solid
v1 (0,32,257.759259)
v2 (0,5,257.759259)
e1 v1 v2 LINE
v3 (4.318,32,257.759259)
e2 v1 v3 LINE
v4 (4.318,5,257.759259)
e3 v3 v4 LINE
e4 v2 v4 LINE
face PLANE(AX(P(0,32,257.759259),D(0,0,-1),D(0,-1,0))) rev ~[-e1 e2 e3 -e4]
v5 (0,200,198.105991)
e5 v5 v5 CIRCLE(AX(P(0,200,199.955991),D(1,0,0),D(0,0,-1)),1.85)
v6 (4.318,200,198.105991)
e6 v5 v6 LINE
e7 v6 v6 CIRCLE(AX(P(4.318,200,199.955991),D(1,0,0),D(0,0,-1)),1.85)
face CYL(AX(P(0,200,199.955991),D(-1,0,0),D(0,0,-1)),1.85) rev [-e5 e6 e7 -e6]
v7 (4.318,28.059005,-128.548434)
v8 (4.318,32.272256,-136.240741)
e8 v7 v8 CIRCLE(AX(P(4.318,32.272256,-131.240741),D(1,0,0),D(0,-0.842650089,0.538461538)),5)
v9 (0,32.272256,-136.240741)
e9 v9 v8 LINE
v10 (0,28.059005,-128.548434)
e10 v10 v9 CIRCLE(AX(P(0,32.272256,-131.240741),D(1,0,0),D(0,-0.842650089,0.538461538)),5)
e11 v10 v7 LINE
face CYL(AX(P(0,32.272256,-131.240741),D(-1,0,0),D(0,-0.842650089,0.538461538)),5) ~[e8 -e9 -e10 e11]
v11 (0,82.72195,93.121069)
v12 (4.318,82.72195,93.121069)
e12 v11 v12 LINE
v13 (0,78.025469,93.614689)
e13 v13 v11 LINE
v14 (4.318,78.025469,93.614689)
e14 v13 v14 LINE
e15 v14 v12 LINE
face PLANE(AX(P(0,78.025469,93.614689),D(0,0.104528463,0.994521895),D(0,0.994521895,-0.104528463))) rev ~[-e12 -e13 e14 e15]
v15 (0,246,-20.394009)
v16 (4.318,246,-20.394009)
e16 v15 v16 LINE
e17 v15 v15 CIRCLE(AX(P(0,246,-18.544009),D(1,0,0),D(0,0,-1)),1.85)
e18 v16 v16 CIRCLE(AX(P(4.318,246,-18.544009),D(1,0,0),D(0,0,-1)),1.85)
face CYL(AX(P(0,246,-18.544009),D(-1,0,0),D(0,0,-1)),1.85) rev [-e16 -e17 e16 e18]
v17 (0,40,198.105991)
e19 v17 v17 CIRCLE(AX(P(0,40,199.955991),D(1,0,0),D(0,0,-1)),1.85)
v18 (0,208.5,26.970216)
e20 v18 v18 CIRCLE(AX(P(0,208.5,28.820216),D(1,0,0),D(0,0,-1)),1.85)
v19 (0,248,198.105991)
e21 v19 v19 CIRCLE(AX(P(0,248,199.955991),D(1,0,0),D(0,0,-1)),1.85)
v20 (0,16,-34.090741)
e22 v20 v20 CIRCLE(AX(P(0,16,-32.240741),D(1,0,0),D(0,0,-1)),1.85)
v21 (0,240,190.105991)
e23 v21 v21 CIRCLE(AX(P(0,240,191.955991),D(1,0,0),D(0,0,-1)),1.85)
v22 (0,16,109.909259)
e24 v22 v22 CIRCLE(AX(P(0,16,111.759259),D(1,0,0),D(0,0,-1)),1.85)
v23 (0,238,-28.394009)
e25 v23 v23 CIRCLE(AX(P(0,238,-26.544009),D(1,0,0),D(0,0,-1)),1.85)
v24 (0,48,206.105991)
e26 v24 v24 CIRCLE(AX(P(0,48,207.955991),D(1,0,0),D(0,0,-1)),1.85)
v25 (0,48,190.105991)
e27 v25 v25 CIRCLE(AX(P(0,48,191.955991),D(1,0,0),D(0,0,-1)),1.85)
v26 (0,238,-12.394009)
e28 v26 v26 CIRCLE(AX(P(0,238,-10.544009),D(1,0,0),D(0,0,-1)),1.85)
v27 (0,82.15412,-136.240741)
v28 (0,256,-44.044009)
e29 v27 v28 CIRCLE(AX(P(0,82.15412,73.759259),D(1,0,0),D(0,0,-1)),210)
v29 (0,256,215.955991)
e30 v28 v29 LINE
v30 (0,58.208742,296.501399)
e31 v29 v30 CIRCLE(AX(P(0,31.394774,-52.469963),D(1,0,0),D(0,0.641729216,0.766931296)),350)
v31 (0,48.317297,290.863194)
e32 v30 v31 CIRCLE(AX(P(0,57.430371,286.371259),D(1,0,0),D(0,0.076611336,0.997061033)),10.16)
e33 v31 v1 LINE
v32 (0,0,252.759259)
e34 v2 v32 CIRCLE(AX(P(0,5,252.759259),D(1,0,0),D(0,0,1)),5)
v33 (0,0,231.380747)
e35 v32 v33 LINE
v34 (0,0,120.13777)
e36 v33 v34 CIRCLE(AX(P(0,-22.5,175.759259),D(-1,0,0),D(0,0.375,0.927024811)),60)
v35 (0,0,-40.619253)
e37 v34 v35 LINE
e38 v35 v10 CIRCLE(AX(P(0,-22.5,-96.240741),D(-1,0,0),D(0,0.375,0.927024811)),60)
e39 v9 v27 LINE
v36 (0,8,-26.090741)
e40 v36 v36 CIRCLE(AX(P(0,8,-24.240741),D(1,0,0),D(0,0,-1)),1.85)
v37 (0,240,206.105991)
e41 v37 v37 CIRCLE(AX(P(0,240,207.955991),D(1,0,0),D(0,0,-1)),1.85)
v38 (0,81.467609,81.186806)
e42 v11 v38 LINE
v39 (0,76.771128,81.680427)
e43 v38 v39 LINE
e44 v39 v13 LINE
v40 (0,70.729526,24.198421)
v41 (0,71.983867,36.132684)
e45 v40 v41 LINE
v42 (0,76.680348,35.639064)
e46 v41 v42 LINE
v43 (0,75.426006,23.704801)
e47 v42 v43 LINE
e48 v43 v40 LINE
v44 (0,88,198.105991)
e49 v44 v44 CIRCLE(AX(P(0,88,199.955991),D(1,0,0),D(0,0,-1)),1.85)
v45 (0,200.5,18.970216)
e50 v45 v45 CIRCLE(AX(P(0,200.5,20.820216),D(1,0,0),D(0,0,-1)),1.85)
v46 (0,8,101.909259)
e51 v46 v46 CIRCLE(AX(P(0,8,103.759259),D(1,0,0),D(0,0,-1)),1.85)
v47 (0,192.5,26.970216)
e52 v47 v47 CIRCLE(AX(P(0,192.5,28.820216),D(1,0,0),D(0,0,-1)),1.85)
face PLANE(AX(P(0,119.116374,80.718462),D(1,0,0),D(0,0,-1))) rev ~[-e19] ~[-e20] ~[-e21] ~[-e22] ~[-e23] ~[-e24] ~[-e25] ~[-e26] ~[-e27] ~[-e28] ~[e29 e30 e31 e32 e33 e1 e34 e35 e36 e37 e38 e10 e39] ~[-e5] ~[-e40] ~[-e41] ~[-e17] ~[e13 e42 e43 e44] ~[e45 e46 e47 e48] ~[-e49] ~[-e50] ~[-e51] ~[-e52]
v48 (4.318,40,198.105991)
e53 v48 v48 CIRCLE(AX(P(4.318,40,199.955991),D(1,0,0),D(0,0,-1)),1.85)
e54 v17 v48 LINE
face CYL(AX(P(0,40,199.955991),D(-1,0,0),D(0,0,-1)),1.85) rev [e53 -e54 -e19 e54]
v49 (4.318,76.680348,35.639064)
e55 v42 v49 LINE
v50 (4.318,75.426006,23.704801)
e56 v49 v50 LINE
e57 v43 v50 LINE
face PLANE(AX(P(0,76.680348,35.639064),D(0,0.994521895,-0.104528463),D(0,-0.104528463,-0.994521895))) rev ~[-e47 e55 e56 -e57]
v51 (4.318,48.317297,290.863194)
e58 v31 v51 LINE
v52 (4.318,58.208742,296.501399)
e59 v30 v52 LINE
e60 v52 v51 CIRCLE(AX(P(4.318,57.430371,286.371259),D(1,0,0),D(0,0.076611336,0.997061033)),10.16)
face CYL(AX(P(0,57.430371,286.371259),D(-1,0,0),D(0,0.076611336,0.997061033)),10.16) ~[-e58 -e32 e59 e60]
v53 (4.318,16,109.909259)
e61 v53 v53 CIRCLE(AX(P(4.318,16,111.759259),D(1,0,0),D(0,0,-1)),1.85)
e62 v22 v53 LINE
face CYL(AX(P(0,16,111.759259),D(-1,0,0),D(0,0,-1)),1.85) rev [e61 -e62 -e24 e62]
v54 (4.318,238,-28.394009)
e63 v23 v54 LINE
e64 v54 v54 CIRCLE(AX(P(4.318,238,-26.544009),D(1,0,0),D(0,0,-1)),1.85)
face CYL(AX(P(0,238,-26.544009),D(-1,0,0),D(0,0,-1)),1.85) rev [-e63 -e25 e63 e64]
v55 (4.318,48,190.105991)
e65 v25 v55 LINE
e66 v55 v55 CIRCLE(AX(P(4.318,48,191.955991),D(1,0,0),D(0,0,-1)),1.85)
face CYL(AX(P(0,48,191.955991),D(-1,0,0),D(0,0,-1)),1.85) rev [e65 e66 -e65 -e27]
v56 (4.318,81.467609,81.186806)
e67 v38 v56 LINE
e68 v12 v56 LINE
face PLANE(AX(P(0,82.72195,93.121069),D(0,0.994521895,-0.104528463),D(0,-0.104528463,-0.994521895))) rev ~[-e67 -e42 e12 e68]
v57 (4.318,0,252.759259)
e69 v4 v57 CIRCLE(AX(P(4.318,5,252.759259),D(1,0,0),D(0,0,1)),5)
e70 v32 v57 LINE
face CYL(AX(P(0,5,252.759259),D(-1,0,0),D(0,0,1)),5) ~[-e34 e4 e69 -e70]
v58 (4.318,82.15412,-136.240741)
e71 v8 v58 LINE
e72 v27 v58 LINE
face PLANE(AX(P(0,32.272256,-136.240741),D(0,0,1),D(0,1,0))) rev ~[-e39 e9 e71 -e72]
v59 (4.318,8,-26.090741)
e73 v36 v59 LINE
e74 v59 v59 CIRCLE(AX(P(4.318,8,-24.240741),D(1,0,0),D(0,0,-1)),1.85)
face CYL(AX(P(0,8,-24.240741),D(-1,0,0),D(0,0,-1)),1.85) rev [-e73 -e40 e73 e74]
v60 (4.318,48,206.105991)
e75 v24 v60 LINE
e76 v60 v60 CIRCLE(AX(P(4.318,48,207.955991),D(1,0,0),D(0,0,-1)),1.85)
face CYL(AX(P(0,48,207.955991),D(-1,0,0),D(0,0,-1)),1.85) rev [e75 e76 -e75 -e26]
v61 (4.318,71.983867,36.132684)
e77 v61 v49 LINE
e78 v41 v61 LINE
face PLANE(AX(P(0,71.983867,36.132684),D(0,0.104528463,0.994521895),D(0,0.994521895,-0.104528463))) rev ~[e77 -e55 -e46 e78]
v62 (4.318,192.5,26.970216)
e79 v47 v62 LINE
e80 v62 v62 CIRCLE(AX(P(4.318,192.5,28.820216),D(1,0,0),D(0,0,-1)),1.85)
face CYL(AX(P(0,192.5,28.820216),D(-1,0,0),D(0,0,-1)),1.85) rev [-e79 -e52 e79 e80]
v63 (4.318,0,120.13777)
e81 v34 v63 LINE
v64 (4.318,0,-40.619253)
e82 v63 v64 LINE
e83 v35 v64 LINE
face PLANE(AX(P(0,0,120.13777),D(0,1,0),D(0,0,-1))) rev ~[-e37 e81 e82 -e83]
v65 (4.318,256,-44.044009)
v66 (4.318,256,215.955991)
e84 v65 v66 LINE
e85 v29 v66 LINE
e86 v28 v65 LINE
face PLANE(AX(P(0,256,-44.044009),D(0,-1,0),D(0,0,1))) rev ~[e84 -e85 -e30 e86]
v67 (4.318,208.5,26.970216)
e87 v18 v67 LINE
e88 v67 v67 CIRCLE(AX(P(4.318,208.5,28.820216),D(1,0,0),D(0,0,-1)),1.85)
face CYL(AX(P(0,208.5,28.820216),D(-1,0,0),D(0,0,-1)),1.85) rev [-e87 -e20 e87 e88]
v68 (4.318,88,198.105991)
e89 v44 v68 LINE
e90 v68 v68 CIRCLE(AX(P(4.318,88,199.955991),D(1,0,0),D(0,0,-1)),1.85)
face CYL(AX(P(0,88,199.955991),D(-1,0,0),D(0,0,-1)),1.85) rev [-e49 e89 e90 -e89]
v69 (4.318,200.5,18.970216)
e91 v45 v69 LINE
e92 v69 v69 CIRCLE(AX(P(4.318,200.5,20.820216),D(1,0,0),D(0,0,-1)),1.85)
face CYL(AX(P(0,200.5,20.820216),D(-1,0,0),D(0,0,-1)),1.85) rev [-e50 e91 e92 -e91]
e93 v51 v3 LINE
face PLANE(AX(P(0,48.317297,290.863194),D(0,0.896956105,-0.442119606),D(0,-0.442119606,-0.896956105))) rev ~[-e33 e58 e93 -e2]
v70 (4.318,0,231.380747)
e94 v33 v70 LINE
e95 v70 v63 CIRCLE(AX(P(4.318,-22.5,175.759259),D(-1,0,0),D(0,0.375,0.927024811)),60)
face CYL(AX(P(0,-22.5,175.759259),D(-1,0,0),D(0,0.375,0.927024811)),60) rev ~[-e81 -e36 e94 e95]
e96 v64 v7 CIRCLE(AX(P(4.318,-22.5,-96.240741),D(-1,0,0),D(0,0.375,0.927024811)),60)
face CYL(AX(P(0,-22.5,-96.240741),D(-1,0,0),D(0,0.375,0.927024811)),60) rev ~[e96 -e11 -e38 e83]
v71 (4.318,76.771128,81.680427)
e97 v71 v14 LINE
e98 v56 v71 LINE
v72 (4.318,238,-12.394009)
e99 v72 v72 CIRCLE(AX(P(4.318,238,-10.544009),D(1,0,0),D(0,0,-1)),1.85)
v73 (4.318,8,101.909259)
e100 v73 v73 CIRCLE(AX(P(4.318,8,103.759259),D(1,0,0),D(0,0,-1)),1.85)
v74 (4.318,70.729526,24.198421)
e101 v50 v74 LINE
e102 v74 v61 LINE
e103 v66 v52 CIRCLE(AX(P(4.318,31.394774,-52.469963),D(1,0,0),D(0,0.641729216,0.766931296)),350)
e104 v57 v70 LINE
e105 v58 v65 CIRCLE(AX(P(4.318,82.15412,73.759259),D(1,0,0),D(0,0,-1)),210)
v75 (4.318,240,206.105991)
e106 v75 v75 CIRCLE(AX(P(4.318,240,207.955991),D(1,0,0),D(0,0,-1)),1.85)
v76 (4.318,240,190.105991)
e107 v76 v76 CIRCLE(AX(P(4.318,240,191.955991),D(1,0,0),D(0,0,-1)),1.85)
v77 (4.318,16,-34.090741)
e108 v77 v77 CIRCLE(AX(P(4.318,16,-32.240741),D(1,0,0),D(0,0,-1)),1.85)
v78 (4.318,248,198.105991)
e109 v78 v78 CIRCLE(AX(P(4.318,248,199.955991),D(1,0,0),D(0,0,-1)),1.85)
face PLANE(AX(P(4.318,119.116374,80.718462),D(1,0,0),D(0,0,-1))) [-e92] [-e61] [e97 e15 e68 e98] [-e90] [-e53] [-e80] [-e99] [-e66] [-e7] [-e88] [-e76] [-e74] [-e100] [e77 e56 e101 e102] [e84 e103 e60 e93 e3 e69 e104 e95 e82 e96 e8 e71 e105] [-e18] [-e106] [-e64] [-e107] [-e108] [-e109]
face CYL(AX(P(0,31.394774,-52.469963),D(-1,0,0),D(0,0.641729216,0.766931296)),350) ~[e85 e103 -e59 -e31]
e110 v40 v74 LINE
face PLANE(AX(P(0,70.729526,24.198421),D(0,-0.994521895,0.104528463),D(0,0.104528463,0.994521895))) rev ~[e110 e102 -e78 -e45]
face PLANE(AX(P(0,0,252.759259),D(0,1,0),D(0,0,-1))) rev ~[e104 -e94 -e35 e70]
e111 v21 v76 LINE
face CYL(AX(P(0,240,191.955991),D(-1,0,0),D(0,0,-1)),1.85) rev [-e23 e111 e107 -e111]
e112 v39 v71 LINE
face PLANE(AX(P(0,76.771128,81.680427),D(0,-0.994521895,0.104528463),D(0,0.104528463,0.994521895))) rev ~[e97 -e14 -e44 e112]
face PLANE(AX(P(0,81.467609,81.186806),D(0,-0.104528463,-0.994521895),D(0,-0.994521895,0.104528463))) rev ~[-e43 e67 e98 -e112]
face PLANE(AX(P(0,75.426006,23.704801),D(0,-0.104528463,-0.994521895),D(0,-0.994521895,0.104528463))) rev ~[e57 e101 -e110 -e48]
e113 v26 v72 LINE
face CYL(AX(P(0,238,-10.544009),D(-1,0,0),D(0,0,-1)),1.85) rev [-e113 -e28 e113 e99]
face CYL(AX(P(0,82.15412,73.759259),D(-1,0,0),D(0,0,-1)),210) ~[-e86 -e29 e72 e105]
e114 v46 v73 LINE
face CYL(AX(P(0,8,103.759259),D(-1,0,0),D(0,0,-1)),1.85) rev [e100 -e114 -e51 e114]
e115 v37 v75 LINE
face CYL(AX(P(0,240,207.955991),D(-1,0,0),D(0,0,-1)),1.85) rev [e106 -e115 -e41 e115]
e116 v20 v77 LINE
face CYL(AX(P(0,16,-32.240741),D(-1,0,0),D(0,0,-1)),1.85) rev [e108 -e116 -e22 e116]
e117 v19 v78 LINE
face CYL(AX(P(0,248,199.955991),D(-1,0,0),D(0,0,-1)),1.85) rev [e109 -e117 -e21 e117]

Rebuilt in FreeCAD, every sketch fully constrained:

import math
import FreeCAD as App
import Part
import Sketcher
Q = App.Units.Quantity

doc = App.newDocument("Part")
body = doc.addObject("PartDesign::Body", "Body")

# Sketch on YZ plane
sketch1 = body.newObject("Sketcher::SketchObject", "Sketch")
sketch1.AttachmentSupport = (doc.getObject("YZ_Plane"), [""])
sketch1.MapMode = "FlatFace"
sketch1.addGeometry([
    Part.LineSegment(App.Vector(32.3, -136.2, 0), App.Vector(82.2, -136.2, 0)),  # 0
    Part.ArcOfCircle(Part.Circle(App.Vector(82.2, 73.8, 0), App.Vector(0, 0, 1), 210), math.radians(-90), math.radians(-34)),  # 1
    Part.LineSegment(App.Vector(256, -44, 0), App.Vector(256, 216, 0)),  # 2
    Part.ArcOfCircle(Part.Circle(App.Vector(31.4, -52.5, 0), App.Vector(0, 0, 1), 350), math.radians(50), math.radians(86)),  # 3
    Part.ArcOfCircle(Part.Circle(App.Vector(57.4, 286.4, 0), App.Vector(0, 0, 1), 10.2), math.radians(86), math.radians(154)),  # 4
    Part.LineSegment(App.Vector(48.3, 290.9, 0), App.Vector(32, 257.8, 0)),  # 5
    Part.LineSegment(App.Vector(32, 257.8, 0), App.Vector(5, 257.8, 0)),  # 6
    Part.ArcOfCircle(Part.Circle(App.Vector(5, 252.8, 0), App.Vector(0, 0, 1), 5), math.radians(90), math.radians(180)),  # 7
    Part.LineSegment(App.Vector(0, 252.8, 0), App.Vector(0, 231.4, 0)),  # 8
    Part.ArcOfCircle(Part.Circle(App.Vector(-22.5, 175.8, 0), App.Vector(0, 0, 1), 60), math.radians(-68), math.radians(68)),  # 9
    Part.LineSegment(App.Vector(0, 120.1, 0), App.Vector(0, -40.6, 0)),  # 10
    Part.ArcOfCircle(Part.Circle(App.Vector(-22.5, -96.2, 0), App.Vector(0, 0, 1), 60), math.radians(-33), math.radians(68)),  # 11
    Part.ArcOfCircle(Part.Circle(App.Vector(32.3, -131.2, 0), App.Vector(0, 0, 1), 5), math.radians(147), math.radians(270)),  # 12
    Part.Circle(App.Vector(40, 200, 0), App.Vector(0, 0, 1), 1.9),  # 13
    Part.Circle(App.Vector(48, 208, 0), App.Vector(0, 0, 1), 1.9),  # 14
    Part.Circle(App.Vector(48, 192, 0), App.Vector(0, 0, 1), 1.9),  # 15
    Part.Circle(App.Vector(8, 103.8, 0), App.Vector(0, 0, 1), 1.9),  # 16
    Part.Circle(App.Vector(16, 111.8, 0), App.Vector(0, 0, 1), 1.9),  # 17
    Part.Circle(App.Vector(88, 200, 0), App.Vector(0, 0, 1), 1.9),  # 18
    Part.Circle(App.Vector(8, -24.2, 0), App.Vector(0, 0, 1), 1.9),  # 19
    Part.Circle(App.Vector(16, -32.2, 0), App.Vector(0, 0, 1), 1.9),  # 20
    Part.LineSegment(App.Vector(78, 93.6, 0), App.Vector(82.7, 93.1, 0)),  # 21
    Part.LineSegment(App.Vector(82.7, 93.1, 0), App.Vector(81.5, 81.2, 0)),  # 22
    Part.LineSegment(App.Vector(81.5, 81.2, 0), App.Vector(76.8, 81.7, 0)),  # 23
    Part.LineSegment(App.Vector(76.8, 81.7, 0), App.Vector(78, 93.6, 0)),  # 24
    Part.LineSegment(App.Vector(72, 36.1, 0), App.Vector(76.7, 35.6, 0)),  # 25
    Part.LineSegment(App.Vector(76.7, 35.6, 0), App.Vector(75.4, 23.7, 0)),  # 26
    Part.LineSegment(App.Vector(75.4, 23.7, 0), App.Vector(70.7, 24.2, 0)),  # 27
    Part.LineSegment(App.Vector(70.7, 24.2, 0), App.Vector(72, 36.1, 0)),  # 28
    Part.Circle(App.Vector(200, 200, 0), App.Vector(0, 0, 1), 1.9),  # 29
    Part.Circle(App.Vector(240, 208, 0), App.Vector(0, 0, 1), 1.9),  # 30
    Part.Circle(App.Vector(248, 200, 0), App.Vector(0, 0, 1), 1.9),  # 31
    Part.Circle(App.Vector(240, 192, 0), App.Vector(0, 0, 1), 1.9),  # 32
    Part.Circle(App.Vector(192.5, 28.8, 0), App.Vector(0, 0, 1), 1.9),  # 33
    Part.Circle(App.Vector(208.5, 28.8, 0), App.Vector(0, 0, 1), 1.9),  # 34
    Part.Circle(App.Vector(200.5, 20.8, 0), App.Vector(0, 0, 1), 1.9),  # 35
    Part.Circle(App.Vector(238, -10.5, 0), App.Vector(0, 0, 1), 1.9),  # 36
    Part.Circle(App.Vector(246, -18.5, 0), App.Vector(0, 0, 1), 1.9),  # 37
    Part.Circle(App.Vector(238, -26.5, 0), App.Vector(0, 0, 1), 1.9),  # 38
], False)
sketch1.addConstraint([
    Sketcher.Constraint("Tangent", 0, 2, 1, 1),
    Sketcher.Constraint("Coincident", 1, 2, 2, 1),
    Sketcher.Constraint("Coincident", 2, 2, 3, 1),
    Sketcher.Constraint("Tangent", 3, 2, 4, 1),
    Sketcher.Constraint("Tangent", 4, 2, 5, 1),
    Sketcher.Constraint("Coincident", 5, 2, 6, 1),
    Sketcher.Constraint("Tangent", 6, 2, 7, 1),
    Sketcher.Constraint("Tangent", 7, 2, 8, 1),
    Sketcher.Constraint("Coincident", 8, 2, 9, 2),
    Sketcher.Constraint("Coincident", 9, 1, 10, 1),
    Sketcher.Constraint("Coincident", 10, 2, 11, 2),
    Sketcher.Constraint("Tangent", 11, 1, 12, 1),
    Sketcher.Constraint("Tangent", 12, 2, 0, 1),
    Sketcher.Constraint("Coincident", 21, 2, 22, 1),
    Sketcher.Constraint("Coincident", 22, 2, 23, 1),
    Sketcher.Constraint("Coincident", 23, 2, 24, 1),
    Sketcher.Constraint("Coincident", 24, 2, 21, 1),
    Sketcher.Constraint("Coincident", 25, 2, 26, 1),
    Sketcher.Constraint("Coincident", 26, 2, 27, 1),
    Sketcher.Constraint("Coincident", 27, 2, 28, 1),
    Sketcher.Constraint("Coincident", 28, 2, 25, 1),
    Sketcher.Constraint("Horizontal", 0),
    Sketcher.Constraint("Vertical", 2),
    Sketcher.Constraint("Horizontal", 6),
    Sketcher.Constraint("Vertical", 8),
    Sketcher.Constraint("Vertical", 10),
    Sketcher.Constraint("Equal", 9, 11),
    Sketcher.Constraint("Equal", 7, 12),
    Sketcher.Constraint("Equal", 13, 14),
    Sketcher.Constraint("Equal", 14, 15),
    Sketcher.Constraint("Equal", 15, 16),
    Sketcher.Constraint("Equal", 16, 17),
    Sketcher.Constraint("Equal", 17, 18),
    Sketcher.Constraint("Equal", 18, 19),
    Sketcher.Constraint("Equal", 19, 20),
    Sketcher.Constraint("Equal", 20, 29),
    Sketcher.Constraint("Equal", 29, 30),
    Sketcher.Constraint("Equal", 30, 31),
    Sketcher.Constraint("Equal", 31, 32),
    Sketcher.Constraint("Equal", 32, 33),
    Sketcher.Constraint("Equal", 33, 34),
    Sketcher.Constraint("Equal", 34, 35),
    Sketcher.Constraint("Equal", 35, 36),
    Sketcher.Constraint("Equal", 36, 37),
    Sketcher.Constraint("Equal", 37, 38),
    Sketcher.Constraint("PointOnObject", 7, 2, -2),
    Sketcher.Constraint("PointOnObject", 9, 1, -2),
    Sketcher.Constraint("Perpendicular", 21, 22),
    Sketcher.Constraint("Perpendicular", 22, 23),
    Sketcher.Constraint("Perpendicular", 23, 24),
    Sketcher.Constraint("Perpendicular", 24, 25),
    Sketcher.Constraint("Perpendicular", 25, 26),
    Sketcher.Constraint("Perpendicular", 26, 27),
    Sketcher.Constraint("Perpendicular", 27, 28),
    Sketcher.Constraint("Horizontal", 13, 3, 18, 3),
    Sketcher.Constraint("Horizontal", 18, 3, 29, 3),
    Sketcher.Constraint("Horizontal", 14, 3, 30, 3),
    Sketcher.Constraint("Horizontal", 29, 3, 31, 3),
    Sketcher.Constraint("Horizontal", 15, 3, 32, 3),
    Sketcher.Constraint("Horizontal", 33, 3, 34, 3),
    Sketcher.Constraint("Vertical", 9, 3, 11, 3),
    Sketcher.Constraint("Vertical", 14, 3, 15, 3),
    Sketcher.Constraint("Vertical", 16, 3, 19, 3),
    Sketcher.Constraint("Vertical", 17, 3, 20, 3),
    Sketcher.Constraint("Vertical", 30, 3, 32, 3),
    Sketcher.Constraint("Vertical", 36, 3, 38, 3),
    Sketcher.Constraint("Equal", 23, 25),
    Sketcher.Constraint("Equal", 24, 26),
    Sketcher.Constraint("Radius", 1, Q("210 mm")),
    Sketcher.Constraint("Radius", 3, Q("350 mm")),
    Sketcher.Constraint("Radius", 7, Q("5 mm")),
    Sketcher.Constraint("Radius", 9, Q("60 mm")),
    Sketcher.Constraint("Diameter", 13, Q("3.7 mm")),
    Sketcher.Constraint("DistanceX", 6, 2, 6, 1, Q("27 mm")),
    Sketcher.Constraint("DistanceY", 2, 1, 2, 2, Q("260 mm")),
    Sketcher.Constraint("Angle", 21, Q("-6 deg")),
    Sketcher.Constraint("Radius", 4, Q("10.16 mm")),
    Sketcher.Constraint("Distance", 22, Q("12 mm")),
    Sketcher.Constraint("DistanceX", -1, 1, 13, 3, Q("40 mm")),
    Sketcher.Constraint("DistanceX", -1, 1, 14, 3, Q("48 mm")),
    Sketcher.Constraint("DistanceX", -1, 1, 16, 3, Q("8 mm")),
    Sketcher.Constraint("DistanceX", -1, 1, 17, 3, Q("16 mm")),
    Sketcher.Constraint("DistanceX", -1, 1, 18, 3, Q("88 mm")),
    Sketcher.Constraint("DistanceX", -1, 1, 29, 3, Q("200 mm")),
    Sketcher.Constraint("DistanceX", -1, 1, 30, 3, Q("240 mm")),
    Sketcher.Constraint("DistanceX", -1, 1, 31, 3, Q("248 mm")),
    Sketcher.Constraint("DistanceX", -1, 1, 36, 3, Q("238 mm")),
    Sketcher.Constraint("DistanceX", -1, 1, 37, 3, Q("246 mm")),
    Sketcher.Constraint("DistanceX", -1, 1, 1, 2, Q("256 mm")),
    Sketcher.Constraint("DistanceY", 1, 3, 7, 3, Q("179 mm")),
    Sketcher.Constraint("DistanceY", 9, 3, 7, 3, Q("77 mm")),
    Sketcher.Constraint("DistanceY", 11, 3, 1, 3, Q("170 mm")),
    Sketcher.Constraint("DistanceY", 13, 3, 14, 3, Q("8 mm")),
    Sketcher.Constraint("DistanceY", 15, 3, 13, 3, Q("8 mm")),
    Sketcher.Constraint("DistanceY", 16, 3, 9, 3, Q("72 mm")),
    Sketcher.Constraint("DistanceY", 16, 3, 17, 3, Q("8 mm")),
    Sketcher.Constraint("DistanceY", 11, 3, 19, 3, Q("72 mm")),
    Sketcher.Constraint("DistanceY", 20, 3, 19, 3, Q("8 mm")),
    Sketcher.Constraint("DistanceX", 33, 3, 34, 3, Q("16 mm")),
    Sketcher.Constraint("DistanceX", 33, 3, 35, 3, Q("8 mm")),
    Sketcher.Constraint("DistanceY", 35, 3, 33, 3, Q("8 mm")),
    Sketcher.Constraint("DistanceY", 37, 3, 36, 3, Q("8 mm")),
    Sketcher.Constraint("DistanceY", 38, 3, 37, 3, Q("8 mm")),
    Sketcher.Constraint("DistanceY", 30, 3, 2, 2, Q("8 mm")),
    Sketcher.Constraint("DistanceX", 9, 3, -1, 1, Q("22.5 mm")),
    Sketcher.Constraint("DistanceX", -1, 1, 33, 3, Q("192.5 mm")),
    Sketcher.Constraint("DistanceY", 36, 3, 32, 3, Q("202.5 mm")),
    Sketcher.Constraint("DistanceY", 1, 3, 4, 3, Q("212.612 mm")),
    Sketcher.Constraint("DistanceY", -1, 1, 3, 2, Q("296.501399 mm")),
    Sketcher.Constraint("DistanceY", -1, 1, 26, 2, Q("23.704801 mm")),
    Sketcher.Constraint("DistanceY", 21, 2, 9, 1, Q("27.016701 mm")),
    Sketcher.Constraint("Distance", 21, Q("4.72235 mm")),
    Sketcher.Constraint("DistanceX", 0, 1, 0, 2, Q("49.881864 mm")),
    Sketcher.Constraint("DistanceX", -1, 1, 4, 3, Q("57.430371 mm")),
    Sketcher.Constraint("DistanceX", -1, 1, 21, 2, Q("82.72195 mm")),
    Sketcher.Constraint("DistanceX", -1, 1, 25, 2, Q("76.680348 mm")),
    Sketcher.Constraint("DistanceY", 3, 3, 33, 3, Q("81.290178 mm")),
])
pad1 = body.newObject("PartDesign::Pad", "Pad")
pad1.Profile = sketch1
pad1.Length = 4.318

doc.recompute()
